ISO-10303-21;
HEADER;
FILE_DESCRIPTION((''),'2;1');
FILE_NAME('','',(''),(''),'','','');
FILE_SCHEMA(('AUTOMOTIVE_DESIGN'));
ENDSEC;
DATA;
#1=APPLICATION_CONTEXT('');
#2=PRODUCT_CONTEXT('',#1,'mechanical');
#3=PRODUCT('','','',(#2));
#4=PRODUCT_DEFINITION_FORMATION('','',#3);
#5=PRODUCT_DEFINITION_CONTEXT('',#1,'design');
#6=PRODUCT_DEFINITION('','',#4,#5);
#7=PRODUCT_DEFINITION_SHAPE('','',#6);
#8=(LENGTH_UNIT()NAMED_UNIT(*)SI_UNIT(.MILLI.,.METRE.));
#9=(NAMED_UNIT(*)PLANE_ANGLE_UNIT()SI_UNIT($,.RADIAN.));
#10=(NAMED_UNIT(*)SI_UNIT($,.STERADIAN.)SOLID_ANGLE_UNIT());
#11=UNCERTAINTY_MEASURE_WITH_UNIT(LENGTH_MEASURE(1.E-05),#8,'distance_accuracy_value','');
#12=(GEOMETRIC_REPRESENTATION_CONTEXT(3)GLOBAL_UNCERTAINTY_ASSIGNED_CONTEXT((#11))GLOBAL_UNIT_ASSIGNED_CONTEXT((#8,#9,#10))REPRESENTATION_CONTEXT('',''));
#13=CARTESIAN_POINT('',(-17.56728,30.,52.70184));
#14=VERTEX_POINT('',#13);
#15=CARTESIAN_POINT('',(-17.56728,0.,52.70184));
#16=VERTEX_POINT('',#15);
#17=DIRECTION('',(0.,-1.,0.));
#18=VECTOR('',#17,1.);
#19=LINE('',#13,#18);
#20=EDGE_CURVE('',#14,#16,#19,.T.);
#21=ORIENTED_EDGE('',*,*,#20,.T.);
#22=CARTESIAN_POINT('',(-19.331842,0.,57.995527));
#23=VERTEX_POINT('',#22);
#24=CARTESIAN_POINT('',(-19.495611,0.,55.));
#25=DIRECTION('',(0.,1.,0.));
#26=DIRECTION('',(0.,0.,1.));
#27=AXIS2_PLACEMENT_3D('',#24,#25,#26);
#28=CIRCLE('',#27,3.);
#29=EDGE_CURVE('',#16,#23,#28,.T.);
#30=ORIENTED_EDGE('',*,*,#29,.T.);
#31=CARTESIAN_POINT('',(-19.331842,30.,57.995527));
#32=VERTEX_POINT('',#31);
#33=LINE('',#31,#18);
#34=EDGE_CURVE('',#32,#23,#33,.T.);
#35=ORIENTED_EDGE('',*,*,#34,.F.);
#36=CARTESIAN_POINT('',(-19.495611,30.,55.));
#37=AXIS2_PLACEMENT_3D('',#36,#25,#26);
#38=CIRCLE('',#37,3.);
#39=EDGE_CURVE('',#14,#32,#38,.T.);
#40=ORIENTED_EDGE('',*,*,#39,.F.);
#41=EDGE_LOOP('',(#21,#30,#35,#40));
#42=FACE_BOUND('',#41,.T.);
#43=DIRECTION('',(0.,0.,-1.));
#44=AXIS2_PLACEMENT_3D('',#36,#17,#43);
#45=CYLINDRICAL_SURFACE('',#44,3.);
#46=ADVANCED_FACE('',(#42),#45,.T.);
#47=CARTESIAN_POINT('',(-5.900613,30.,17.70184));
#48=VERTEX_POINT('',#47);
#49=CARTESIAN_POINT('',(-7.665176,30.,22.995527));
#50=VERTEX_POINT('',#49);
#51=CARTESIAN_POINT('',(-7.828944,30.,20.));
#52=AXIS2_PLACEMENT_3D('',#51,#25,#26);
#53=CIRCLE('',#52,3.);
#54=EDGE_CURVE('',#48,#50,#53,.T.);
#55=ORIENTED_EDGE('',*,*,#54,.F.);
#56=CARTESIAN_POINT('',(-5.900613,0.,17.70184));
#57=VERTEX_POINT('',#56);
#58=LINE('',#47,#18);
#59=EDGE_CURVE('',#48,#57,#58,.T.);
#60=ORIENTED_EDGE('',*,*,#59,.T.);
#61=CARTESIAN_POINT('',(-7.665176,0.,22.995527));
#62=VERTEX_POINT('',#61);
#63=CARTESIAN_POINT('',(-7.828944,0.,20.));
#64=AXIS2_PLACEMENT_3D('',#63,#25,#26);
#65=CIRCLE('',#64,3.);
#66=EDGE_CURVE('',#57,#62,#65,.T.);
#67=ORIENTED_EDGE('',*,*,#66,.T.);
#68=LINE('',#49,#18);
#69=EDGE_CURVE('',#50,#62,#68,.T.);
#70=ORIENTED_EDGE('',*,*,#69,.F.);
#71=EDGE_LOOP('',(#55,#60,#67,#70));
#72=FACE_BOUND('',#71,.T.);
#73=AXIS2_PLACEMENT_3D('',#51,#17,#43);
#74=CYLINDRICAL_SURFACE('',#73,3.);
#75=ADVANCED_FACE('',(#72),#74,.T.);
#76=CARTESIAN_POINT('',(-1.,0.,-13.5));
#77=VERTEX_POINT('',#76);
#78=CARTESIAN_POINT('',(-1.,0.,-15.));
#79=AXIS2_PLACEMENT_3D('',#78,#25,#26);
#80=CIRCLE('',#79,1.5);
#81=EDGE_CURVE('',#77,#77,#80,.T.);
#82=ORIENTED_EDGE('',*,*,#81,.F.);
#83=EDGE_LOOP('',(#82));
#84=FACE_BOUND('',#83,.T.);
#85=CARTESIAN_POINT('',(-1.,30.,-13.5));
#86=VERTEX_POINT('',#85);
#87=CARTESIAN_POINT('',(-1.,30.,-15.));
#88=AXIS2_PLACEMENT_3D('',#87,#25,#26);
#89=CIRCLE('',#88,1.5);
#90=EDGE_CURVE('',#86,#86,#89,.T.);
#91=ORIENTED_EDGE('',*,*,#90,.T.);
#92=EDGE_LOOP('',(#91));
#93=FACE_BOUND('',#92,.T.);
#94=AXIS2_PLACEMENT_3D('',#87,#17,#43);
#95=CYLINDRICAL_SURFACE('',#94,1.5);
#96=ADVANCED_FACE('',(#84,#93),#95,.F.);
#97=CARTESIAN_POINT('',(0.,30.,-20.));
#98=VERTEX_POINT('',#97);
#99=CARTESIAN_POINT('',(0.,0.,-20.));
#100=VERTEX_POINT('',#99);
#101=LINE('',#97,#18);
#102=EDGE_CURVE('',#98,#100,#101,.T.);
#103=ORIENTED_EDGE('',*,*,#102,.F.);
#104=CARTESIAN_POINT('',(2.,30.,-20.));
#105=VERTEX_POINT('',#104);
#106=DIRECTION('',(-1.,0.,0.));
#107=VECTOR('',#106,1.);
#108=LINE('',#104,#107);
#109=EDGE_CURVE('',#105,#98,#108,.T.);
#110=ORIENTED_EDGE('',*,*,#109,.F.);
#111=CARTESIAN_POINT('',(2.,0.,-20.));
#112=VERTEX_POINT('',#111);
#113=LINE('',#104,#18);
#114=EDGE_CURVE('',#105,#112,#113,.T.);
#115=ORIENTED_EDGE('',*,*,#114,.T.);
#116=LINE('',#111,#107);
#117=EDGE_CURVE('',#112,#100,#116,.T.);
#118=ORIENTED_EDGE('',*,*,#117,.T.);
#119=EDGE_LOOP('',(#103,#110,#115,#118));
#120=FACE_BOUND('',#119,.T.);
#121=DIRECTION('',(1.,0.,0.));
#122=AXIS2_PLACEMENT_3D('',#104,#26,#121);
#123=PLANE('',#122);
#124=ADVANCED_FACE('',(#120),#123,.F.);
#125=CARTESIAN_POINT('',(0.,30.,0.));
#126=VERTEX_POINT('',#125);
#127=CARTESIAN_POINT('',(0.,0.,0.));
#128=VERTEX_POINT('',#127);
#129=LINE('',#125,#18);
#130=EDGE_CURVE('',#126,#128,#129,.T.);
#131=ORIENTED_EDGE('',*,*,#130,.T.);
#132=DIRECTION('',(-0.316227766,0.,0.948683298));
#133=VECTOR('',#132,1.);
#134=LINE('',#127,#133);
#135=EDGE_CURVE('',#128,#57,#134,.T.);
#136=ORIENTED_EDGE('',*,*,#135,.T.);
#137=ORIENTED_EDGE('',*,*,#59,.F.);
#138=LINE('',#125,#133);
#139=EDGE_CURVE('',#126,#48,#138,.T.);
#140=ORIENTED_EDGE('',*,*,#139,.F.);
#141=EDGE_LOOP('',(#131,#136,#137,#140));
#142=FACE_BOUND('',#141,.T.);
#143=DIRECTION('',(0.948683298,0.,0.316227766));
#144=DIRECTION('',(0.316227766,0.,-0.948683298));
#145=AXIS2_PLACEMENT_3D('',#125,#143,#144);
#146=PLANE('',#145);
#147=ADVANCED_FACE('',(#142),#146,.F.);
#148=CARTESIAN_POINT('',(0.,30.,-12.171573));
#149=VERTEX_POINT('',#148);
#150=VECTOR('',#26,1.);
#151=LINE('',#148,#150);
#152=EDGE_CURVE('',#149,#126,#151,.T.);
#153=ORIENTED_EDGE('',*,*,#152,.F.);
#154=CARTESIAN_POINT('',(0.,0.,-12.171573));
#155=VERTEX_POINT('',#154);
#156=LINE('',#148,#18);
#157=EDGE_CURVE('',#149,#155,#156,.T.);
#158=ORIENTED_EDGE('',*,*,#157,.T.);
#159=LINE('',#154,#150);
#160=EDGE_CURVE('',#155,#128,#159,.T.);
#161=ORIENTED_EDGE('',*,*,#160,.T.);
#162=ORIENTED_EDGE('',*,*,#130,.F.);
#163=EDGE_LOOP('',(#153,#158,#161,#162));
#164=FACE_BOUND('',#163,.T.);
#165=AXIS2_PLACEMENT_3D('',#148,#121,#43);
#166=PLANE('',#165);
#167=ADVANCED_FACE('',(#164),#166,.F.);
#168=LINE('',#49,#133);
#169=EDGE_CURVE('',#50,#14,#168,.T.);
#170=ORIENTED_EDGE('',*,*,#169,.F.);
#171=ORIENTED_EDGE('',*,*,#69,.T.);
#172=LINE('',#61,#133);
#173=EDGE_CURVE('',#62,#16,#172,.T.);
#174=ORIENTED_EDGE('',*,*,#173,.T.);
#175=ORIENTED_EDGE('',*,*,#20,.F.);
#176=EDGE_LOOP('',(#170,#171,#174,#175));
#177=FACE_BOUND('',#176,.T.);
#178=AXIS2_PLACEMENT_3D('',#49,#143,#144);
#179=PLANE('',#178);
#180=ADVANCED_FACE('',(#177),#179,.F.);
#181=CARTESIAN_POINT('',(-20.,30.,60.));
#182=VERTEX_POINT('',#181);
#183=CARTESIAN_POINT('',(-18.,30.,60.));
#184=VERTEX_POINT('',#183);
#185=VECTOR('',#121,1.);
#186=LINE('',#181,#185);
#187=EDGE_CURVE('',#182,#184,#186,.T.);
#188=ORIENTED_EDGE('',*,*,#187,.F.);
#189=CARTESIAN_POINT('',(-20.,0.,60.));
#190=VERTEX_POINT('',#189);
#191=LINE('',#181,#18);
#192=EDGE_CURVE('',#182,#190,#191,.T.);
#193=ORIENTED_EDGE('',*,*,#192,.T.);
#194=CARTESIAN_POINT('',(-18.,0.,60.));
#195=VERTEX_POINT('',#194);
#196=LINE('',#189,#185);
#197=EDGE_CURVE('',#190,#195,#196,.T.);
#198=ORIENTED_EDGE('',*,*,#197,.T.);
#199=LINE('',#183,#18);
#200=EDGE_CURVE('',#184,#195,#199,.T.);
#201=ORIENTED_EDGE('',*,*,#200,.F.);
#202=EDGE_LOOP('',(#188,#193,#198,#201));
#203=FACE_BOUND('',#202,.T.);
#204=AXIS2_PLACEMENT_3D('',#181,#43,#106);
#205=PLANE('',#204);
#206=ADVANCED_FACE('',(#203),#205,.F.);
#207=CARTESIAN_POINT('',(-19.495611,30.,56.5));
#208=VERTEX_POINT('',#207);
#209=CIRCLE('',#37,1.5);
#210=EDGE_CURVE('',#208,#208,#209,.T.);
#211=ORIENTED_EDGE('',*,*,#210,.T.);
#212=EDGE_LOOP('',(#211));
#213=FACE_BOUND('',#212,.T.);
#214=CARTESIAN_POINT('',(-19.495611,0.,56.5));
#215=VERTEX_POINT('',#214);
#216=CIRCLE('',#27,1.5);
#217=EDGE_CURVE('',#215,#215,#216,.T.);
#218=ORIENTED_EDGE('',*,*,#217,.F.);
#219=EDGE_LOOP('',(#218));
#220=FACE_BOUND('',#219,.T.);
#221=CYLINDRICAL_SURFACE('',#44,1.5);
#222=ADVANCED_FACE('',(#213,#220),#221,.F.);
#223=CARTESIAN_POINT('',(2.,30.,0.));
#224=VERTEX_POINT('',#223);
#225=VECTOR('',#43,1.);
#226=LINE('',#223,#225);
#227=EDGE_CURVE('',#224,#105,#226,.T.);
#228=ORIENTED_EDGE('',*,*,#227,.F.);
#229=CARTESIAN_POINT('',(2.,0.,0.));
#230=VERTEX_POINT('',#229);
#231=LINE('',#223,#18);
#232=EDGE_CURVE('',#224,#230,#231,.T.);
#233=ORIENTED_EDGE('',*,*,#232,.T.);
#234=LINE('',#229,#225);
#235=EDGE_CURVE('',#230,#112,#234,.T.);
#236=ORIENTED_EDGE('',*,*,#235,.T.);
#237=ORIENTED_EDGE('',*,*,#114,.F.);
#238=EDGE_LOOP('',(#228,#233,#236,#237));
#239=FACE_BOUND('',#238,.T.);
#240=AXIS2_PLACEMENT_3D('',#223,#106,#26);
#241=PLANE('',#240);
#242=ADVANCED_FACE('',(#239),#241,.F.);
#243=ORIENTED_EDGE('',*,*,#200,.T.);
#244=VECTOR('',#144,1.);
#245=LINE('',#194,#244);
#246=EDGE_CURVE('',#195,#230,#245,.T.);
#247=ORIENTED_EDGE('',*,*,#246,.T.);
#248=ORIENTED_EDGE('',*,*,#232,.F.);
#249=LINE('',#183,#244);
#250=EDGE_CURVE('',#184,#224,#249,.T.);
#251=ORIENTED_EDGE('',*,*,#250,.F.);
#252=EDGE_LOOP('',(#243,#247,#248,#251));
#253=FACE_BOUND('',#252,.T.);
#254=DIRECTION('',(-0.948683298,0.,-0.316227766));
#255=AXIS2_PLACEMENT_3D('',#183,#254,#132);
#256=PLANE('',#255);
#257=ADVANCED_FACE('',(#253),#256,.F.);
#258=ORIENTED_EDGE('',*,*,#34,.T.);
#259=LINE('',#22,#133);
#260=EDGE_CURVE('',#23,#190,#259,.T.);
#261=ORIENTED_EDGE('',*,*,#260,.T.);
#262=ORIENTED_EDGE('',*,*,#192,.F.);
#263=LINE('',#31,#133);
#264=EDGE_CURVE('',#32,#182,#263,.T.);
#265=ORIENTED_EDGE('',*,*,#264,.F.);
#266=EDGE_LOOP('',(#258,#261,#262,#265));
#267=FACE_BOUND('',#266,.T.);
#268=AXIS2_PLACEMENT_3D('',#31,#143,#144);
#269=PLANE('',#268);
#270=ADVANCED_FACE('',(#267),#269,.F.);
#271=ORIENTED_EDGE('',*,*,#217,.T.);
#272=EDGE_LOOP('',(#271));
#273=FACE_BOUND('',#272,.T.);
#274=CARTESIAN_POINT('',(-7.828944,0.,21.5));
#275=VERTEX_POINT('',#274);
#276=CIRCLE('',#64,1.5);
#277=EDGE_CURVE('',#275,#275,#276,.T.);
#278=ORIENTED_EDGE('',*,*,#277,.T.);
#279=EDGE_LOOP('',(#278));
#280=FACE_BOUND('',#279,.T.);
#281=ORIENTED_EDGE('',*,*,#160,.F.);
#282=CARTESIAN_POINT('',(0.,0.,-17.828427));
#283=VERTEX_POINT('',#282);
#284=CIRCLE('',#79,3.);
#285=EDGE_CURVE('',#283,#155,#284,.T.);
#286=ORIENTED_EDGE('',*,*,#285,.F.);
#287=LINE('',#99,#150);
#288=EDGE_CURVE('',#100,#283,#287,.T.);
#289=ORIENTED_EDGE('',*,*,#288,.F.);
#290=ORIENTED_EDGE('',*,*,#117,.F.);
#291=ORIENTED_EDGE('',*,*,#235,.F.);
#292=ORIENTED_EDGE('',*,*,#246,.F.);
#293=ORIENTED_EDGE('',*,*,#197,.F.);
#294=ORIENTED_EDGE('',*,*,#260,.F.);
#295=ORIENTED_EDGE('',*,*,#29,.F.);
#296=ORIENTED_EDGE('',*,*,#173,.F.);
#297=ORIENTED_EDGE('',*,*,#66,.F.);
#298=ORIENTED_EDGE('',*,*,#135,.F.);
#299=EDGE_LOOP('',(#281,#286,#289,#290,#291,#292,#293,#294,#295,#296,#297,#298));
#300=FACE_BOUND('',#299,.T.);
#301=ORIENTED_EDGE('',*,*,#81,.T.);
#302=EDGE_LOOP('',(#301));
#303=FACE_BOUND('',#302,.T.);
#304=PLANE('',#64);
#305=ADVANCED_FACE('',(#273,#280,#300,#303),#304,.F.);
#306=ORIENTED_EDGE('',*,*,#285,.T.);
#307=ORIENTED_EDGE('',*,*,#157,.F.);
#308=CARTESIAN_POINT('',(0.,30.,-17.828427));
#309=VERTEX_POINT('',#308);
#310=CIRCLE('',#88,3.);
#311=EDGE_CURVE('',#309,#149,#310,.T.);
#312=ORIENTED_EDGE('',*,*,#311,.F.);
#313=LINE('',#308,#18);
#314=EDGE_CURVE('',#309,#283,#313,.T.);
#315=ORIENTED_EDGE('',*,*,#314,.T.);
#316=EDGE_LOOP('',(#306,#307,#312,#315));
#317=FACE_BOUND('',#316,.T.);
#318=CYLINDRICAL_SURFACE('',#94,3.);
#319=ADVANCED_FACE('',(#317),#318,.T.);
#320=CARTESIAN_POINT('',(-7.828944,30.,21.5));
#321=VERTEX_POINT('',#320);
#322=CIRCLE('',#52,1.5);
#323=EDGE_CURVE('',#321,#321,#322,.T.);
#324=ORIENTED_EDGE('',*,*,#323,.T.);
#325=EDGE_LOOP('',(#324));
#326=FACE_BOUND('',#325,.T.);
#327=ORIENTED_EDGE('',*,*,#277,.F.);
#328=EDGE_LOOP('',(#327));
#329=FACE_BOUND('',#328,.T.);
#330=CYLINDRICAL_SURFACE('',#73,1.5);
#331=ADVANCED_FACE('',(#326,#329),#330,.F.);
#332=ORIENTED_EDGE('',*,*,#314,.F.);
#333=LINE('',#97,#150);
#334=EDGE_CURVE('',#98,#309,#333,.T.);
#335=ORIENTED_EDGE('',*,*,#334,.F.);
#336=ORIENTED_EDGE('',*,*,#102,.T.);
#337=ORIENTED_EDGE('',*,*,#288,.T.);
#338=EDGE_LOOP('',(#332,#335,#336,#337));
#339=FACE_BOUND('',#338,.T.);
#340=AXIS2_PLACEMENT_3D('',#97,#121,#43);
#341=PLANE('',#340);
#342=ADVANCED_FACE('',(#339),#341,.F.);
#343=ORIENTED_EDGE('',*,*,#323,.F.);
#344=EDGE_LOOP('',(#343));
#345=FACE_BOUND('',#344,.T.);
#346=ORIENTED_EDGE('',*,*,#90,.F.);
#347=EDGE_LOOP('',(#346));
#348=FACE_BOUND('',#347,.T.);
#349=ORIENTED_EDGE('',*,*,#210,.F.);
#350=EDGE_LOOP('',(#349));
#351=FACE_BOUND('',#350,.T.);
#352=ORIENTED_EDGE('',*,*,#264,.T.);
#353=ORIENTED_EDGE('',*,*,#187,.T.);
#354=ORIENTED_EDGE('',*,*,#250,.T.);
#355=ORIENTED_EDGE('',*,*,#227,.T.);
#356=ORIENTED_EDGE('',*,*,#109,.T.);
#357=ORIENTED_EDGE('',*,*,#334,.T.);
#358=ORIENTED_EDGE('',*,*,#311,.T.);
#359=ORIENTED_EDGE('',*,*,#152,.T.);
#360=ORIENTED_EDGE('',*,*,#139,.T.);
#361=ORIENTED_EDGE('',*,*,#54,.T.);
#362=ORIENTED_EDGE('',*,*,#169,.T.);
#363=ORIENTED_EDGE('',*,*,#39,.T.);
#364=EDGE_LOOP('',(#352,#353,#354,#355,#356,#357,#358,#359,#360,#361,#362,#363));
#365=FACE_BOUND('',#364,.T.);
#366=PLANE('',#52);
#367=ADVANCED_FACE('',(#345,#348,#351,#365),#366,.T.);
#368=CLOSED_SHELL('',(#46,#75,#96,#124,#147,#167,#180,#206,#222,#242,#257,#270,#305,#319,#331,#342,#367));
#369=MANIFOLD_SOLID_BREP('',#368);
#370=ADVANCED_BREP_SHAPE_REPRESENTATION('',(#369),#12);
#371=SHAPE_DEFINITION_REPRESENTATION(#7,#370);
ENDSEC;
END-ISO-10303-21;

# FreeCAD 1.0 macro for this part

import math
import FreeCAD as App
import Part
import Sketcher
from FreeCAD import Vector

doc = App.newDocument("Part")
body = doc.addObject("PartDesign::Body", "Body")

# Sketch on XZ plane
sketch1 = body.newObject("Sketcher::SketchObject", "Sketch")
sketch1.AttachmentSupport = (doc.getObject("XZ_Plane"), [""])
sketch1.MapMode = "FlatFace"
sketch1.addGeometry(Part.LineSegment(Vector(0, 0, 0), Vector(-5.9, 17.7, 0)), False)
sketch1.addGeometry(Part.ArcOfCircle(Part.Circle(Vector(-7.8, 20, 0), Vector(0, 0, 1), 3), math.radians(87), math.radians(310)), False)
sketch1.addGeometry(Part.LineSegment(Vector(-7.7, 23, 0), Vector(-17.6, 52.7, 0)), False)
sketch1.addGeometry(Part.ArcOfCircle(Part.Circle(Vector(-19.5, 55, 0), Vector(0, 0, 1), 3), math.radians(87), math.radians(310)), False)
sketch1.addGeometry(Part.LineSegment(Vector(-19.3, 58, 0), Vector(-20, 60, 0)), False)
sketch1.addGeometry(Part.LineSegment(Vector(-20, 60, 0), Vector(-18, 60, 0)), False)
sketch1.addGeometry(Part.LineSegment(Vector(-18, 60, 0), Vector(2, 0, 0)), False)
sketch1.addGeometry(Part.LineSegment(Vector(2, 0, 0), Vector(2, -20, 0)), False)
sketch1.addGeometry(Part.LineSegment(Vector(2, -20, 0), Vector(0, -20, 0)), False)
sketch1.addGeometry(Part.LineSegment(Vector(0, -20, 0), Vector(0, -17.8, 0)), False)
sketch1.addGeometry(Part.ArcOfCircle(Part.Circle(Vector(-1, -15, 0), Vector(0, 0, 1), 3), math.radians(71), math.radians(289)), False)
sketch1.addGeometry(Part.LineSegment(Vector(0, -12.2, 0), Vector(0, 0, 0)), False)
sketch1.addGeometry(Part.Circle(Vector(-19.5, 55, 0), Vector(0, 0, 1), 1.5), False)
sketch1.addGeometry(Part.Circle(Vector(-7.8, 20, 0), Vector(0, 0, 1), 1.5), False)
sketch1.addGeometry(Part.Circle(Vector(-1, -15, 0), Vector(0, 0, 1), 1.5), False)
sketch1.addConstraint(Sketcher.Constraint("Coincident", 0, 2, 1, 2))
sketch1.addConstraint(Sketcher.Constraint("Coincident", 1, 1, 2, 1))
sketch1.addConstraint(Sketcher.Constraint("Coincident", 2, 2, 3, 2))
sketch1.addConstraint(Sketcher.Constraint("Coincident", 3, 1, 4, 1))
sketch1.addConstraint(Sketcher.Constraint("Coincident", 4, 2, 5, 1))
sketch1.addConstraint(Sketcher.Constraint("Coincident", 5, 2, 6, 1))
sketch1.addConstraint(Sketcher.Constraint("Coincident", 6, 2, 7, 1))
sketch1.addConstraint(Sketcher.Constraint("Coincident", 7, 2, 8, 1))
sketch1.addConstraint(Sketcher.Constraint("Coincident", 8, 2, 9, 1))
sketch1.addConstraint(Sketcher.Constraint("Coincident", 9, 2, 10, 2))
sketch1.addConstraint(Sketcher.Constraint("Coincident", 10, 1, 11, 1))
sketch1.addConstraint(Sketcher.Constraint("Coincident", 11, 2, 0, 1))
sketch1.addConstraint(Sketcher.Constraint("Horizontal", 5))
sketch1.addConstraint(Sketcher.Constraint("Vertical", 7))
sketch1.addConstraint(Sketcher.Constraint("Horizontal", 8))
sketch1.addConstraint(Sketcher.Constraint("Vertical", 9))
sketch1.addConstraint(Sketcher.Constraint("Vertical", 11))
sketch1.addConstraint(Sketcher.Constraint("Coincident", 11, 2, -1, 1))
sketch1.addConstraint(Sketcher.Constraint("Coincident", 12, 3, 3, 3))
sketch1.addConstraint(Sketcher.Constraint("Coincident", 13, 3, 1, 3))
sketch1.addConstraint(Sketcher.Constraint("Coincident", 14, 3, 10, 3))
sketch1.addConstraint(Sketcher.Constraint("Equal", 1, 3))
sketch1.addConstraint(Sketcher.Constraint("Equal", 3, 10))
sketch1.addConstraint(Sketcher.Constraint("Equal", 12, 13))
sketch1.addConstraint(Sketcher.Constraint("Equal", 13, 14))
sketch1.addConstraint(Sketcher.Constraint("PointOnObject", 6, 2, -1))
sketch1.addConstraint(Sketcher.Constraint("PointOnObject", 8, 2, -2))
sketch1.addConstraint(Sketcher.Constraint("Parallel", 0, 2))
sketch1.addConstraint(Sketcher.Constraint("Parallel", 2, 4))
sketch1.addConstraint(Sketcher.Constraint("Parallel", 4, 6))
sketch1.addConstraint(Sketcher.Constraint("Equal", 5, 8))
sketch1.addConstraint(Sketcher.Constraint("Diameter", 12, 3.0))
sketch1.addConstraint(Sketcher.Constraint("Radius", 1, 3.0))
sketch1.addConstraint(Sketcher.Constraint("DistanceX", 5, 1, 5, 2, 2.0))
sketch1.addConstraint(Sketcher.Constraint("DistanceY", 7, 2, 7, 1, 20.0))
sketch1.addConstraint(Sketcher.Constraint("DistanceY", -1, 1, 1, 3, 20.0))
sketch1.addConstraint(Sketcher.Constraint("DistanceY", -1, 1, 3, 3, 55.0))
sketch1.addConstraint(Sketcher.Constraint("DistanceX", 10, 3, -1, 1, 1.0))
sketch1.addConstraint(Sketcher.Constraint("DistanceY", 10, 3, -1, 1, 15.0))
sketch1.addConstraint(Sketcher.Constraint("DistanceX", 4, 2, -1, 1, 20.0))
sketch1.addConstraint(Sketcher.Constraint("DistanceY", -1, 1, 4, 2, 60.0))
sketch1.addConstraint(Sketcher.Constraint("DistanceY", 1, 1, 3, 1, 35.0))
sketch1.addConstraint(Sketcher.Constraint("Distance", 4, 2.1129))
sketch1.addConstraint(Sketcher.Constraint("DistanceY", -1, 1, 0, 2, 17.70184))
pad1 = body.newObject("PartDesign::Pad", "Pad")
pad1.Profile = sketch1
pad1.Length = 30
pad1.Reversed = True

doc.recompute()
